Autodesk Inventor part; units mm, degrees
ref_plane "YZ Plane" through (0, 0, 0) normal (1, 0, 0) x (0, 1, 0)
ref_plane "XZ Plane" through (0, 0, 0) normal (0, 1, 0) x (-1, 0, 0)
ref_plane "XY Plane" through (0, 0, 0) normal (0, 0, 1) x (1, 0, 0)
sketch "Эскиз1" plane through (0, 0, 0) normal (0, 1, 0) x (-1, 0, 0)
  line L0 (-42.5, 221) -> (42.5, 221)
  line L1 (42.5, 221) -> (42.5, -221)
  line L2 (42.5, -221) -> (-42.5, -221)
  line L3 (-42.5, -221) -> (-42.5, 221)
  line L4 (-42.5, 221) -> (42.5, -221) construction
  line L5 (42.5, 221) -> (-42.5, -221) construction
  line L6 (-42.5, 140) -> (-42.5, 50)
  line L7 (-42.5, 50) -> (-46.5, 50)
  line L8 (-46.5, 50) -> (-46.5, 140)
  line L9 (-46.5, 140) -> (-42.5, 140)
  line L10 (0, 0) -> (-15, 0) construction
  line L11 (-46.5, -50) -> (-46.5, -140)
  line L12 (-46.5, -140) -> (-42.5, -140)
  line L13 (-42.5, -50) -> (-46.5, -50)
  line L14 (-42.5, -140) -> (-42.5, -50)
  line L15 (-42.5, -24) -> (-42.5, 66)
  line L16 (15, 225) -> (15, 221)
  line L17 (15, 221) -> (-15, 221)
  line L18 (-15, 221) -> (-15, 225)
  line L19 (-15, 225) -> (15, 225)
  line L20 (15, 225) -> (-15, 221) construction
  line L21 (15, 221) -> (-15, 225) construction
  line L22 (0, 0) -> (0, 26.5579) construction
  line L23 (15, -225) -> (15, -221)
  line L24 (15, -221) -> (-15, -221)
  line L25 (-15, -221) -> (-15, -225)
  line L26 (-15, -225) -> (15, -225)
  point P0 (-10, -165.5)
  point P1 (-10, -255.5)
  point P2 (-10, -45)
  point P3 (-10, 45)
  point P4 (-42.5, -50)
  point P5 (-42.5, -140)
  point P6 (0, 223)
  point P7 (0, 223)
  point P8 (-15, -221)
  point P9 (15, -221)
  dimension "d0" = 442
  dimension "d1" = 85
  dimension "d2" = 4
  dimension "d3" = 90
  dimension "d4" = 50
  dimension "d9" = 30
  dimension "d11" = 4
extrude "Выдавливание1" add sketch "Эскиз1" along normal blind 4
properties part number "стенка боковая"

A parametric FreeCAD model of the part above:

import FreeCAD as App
import Part
import Sketcher
from FreeCAD import Vector


def add_polygon(sketch, points):
    """Adds a closed chain of lines whose ends are joined by coincident constraints."""
    first, n = sketch.GeometryCount, len(points)
    for a, b in zip(points, points[1:] + points[:1]):
        sketch.addGeometry(Part.LineSegment(App.Vector(*a, 0), App.Vector(*b, 0)), False)
    for i in range(n):
        sketch.addConstraint(Sketcher.Constraint("Coincident", first + i, 2, first + (i + 1) % n, 1))

doc = App.newDocument("Part")
params = doc.addObject("Spreadsheet::Sheet", "Params")
for row, (alias, value) in enumerate([
    ("sketch1_width", "4 mm"),
    ("sketch1_width2", "30 mm"),
    ("sketch1_height", "90 mm"),
    ("sketch1_height2", "442 mm"),
    ("pad1_length", "4 mm"),
], start=1):
    params.set(f"A{row}", alias)
    params.set(f"B{row}", "=" + value)
    params.setAlias(f"B{row}", alias)

body = doc.addObject("PartDesign::Body", "Body")

# Sketch on XZ plane
sketch1 = doc.addObject("Sketcher::SketchObject", "Sketch")
body.addObject(sketch1)
sketch1.AttachmentSupport = (doc.XZ_Plane, [""])
sketch1.MapMode = "FlatFace"
add_polygon(sketch1, [(15, 221), (42.5, 221), (42.5, 140), (46.5, 140), (46.5, 50), (42.5, 50), (42.5, -50), (46.5, -50), (46.5, -140), (42.5, -140), (42.5, -221), (15, -221), (15, -225), (-15, -225), (-15, -221), (-42.5, -221), (-42.5, 221), (-15, 221), (-15, 225), (15, 225)])  # lines 0-19
sketch1.addConstraint([
    Sketcher.Constraint("Horizontal", 0),
    Sketcher.Constraint("Vertical", 1),
    Sketcher.Constraint("Horizontal", 2),
    Sketcher.Constraint("Vertical", 3),
    Sketcher.Constraint("Horizontal", 4),
    Sketcher.Constraint("Vertical", 5),
    Sketcher.Constraint("Horizontal", 6),
    Sketcher.Constraint("Vertical", 7),
    Sketcher.Constraint("Horizontal", 8),
    Sketcher.Constraint("Vertical", 9),
    Sketcher.Constraint("Horizontal", 10),
    Sketcher.Constraint("Vertical", 11),
    Sketcher.Constraint("Horizontal", 12),
    Sketcher.Constraint("Vertical", 13),
    Sketcher.Constraint("Horizontal", 14),
    Sketcher.Constraint("Vertical", 15),
    Sketcher.Constraint("Horizontal", 16),
    Sketcher.Constraint("Vertical", 17),
    Sketcher.Constraint("Horizontal", 18),
    Sketcher.Constraint("Vertical", 19),
    Sketcher.Constraint("Symmetric", 0, 2, 14, 2, -1, 1),
    Sketcher.Constraint("Symmetric", 9, 2, 15, 2, -1, 1),
    Sketcher.Constraint("Symmetric", 11, 2, 17, 2, -1, 1),
    Sketcher.Constraint("Symmetric", 10, 2, 13, 2, -2),
    Sketcher.Constraint("Symmetric", 3, 2, 6, 2, -1),
    Sketcher.Constraint("Vertical", 1, 2, 4, 2),
    Sketcher.Constraint("Vertical", 11, 2, 18, 2),
    Sketcher.Constraint("Equal", 3, 7),
    Sketcher.Constraint("Equal", 8, 11),
    Sketcher.Constraint("DistanceX", 2, 1, 2, 2, 4.0),
    Sketcher.Constraint("DistanceX", 12, 2, 12, 1, 30.0),
    Sketcher.Constraint("DistanceY", 3, 2, 3, 1, 90.0),
    Sketcher.Constraint("DistanceY", 15, 1, 15, 2, 442.0),
    Sketcher.Constraint("DistanceY", -1, 1, 3, 2, 50.0),
    Sketcher.Constraint("DistanceX", 14, 2, 9, 2, 85.0),
])
sketch1.setExpression("Constraints[49]", "Params.sketch1_width")
sketch1.setExpression("Constraints[50]", "Params.sketch1_width2")
sketch1.setExpression("Constraints[51]", "Params.sketch1_height")
sketch1.setExpression("Constraints[52]", "Params.sketch1_height2")
pad1 = doc.addObject("PartDesign::Pad", "Pad")
body.addObject(pad1)
pad1.Profile = sketch1
pad1.setExpression("Length", "Params.pad1_length")
pad1.Reversed = True

doc.recompute()
